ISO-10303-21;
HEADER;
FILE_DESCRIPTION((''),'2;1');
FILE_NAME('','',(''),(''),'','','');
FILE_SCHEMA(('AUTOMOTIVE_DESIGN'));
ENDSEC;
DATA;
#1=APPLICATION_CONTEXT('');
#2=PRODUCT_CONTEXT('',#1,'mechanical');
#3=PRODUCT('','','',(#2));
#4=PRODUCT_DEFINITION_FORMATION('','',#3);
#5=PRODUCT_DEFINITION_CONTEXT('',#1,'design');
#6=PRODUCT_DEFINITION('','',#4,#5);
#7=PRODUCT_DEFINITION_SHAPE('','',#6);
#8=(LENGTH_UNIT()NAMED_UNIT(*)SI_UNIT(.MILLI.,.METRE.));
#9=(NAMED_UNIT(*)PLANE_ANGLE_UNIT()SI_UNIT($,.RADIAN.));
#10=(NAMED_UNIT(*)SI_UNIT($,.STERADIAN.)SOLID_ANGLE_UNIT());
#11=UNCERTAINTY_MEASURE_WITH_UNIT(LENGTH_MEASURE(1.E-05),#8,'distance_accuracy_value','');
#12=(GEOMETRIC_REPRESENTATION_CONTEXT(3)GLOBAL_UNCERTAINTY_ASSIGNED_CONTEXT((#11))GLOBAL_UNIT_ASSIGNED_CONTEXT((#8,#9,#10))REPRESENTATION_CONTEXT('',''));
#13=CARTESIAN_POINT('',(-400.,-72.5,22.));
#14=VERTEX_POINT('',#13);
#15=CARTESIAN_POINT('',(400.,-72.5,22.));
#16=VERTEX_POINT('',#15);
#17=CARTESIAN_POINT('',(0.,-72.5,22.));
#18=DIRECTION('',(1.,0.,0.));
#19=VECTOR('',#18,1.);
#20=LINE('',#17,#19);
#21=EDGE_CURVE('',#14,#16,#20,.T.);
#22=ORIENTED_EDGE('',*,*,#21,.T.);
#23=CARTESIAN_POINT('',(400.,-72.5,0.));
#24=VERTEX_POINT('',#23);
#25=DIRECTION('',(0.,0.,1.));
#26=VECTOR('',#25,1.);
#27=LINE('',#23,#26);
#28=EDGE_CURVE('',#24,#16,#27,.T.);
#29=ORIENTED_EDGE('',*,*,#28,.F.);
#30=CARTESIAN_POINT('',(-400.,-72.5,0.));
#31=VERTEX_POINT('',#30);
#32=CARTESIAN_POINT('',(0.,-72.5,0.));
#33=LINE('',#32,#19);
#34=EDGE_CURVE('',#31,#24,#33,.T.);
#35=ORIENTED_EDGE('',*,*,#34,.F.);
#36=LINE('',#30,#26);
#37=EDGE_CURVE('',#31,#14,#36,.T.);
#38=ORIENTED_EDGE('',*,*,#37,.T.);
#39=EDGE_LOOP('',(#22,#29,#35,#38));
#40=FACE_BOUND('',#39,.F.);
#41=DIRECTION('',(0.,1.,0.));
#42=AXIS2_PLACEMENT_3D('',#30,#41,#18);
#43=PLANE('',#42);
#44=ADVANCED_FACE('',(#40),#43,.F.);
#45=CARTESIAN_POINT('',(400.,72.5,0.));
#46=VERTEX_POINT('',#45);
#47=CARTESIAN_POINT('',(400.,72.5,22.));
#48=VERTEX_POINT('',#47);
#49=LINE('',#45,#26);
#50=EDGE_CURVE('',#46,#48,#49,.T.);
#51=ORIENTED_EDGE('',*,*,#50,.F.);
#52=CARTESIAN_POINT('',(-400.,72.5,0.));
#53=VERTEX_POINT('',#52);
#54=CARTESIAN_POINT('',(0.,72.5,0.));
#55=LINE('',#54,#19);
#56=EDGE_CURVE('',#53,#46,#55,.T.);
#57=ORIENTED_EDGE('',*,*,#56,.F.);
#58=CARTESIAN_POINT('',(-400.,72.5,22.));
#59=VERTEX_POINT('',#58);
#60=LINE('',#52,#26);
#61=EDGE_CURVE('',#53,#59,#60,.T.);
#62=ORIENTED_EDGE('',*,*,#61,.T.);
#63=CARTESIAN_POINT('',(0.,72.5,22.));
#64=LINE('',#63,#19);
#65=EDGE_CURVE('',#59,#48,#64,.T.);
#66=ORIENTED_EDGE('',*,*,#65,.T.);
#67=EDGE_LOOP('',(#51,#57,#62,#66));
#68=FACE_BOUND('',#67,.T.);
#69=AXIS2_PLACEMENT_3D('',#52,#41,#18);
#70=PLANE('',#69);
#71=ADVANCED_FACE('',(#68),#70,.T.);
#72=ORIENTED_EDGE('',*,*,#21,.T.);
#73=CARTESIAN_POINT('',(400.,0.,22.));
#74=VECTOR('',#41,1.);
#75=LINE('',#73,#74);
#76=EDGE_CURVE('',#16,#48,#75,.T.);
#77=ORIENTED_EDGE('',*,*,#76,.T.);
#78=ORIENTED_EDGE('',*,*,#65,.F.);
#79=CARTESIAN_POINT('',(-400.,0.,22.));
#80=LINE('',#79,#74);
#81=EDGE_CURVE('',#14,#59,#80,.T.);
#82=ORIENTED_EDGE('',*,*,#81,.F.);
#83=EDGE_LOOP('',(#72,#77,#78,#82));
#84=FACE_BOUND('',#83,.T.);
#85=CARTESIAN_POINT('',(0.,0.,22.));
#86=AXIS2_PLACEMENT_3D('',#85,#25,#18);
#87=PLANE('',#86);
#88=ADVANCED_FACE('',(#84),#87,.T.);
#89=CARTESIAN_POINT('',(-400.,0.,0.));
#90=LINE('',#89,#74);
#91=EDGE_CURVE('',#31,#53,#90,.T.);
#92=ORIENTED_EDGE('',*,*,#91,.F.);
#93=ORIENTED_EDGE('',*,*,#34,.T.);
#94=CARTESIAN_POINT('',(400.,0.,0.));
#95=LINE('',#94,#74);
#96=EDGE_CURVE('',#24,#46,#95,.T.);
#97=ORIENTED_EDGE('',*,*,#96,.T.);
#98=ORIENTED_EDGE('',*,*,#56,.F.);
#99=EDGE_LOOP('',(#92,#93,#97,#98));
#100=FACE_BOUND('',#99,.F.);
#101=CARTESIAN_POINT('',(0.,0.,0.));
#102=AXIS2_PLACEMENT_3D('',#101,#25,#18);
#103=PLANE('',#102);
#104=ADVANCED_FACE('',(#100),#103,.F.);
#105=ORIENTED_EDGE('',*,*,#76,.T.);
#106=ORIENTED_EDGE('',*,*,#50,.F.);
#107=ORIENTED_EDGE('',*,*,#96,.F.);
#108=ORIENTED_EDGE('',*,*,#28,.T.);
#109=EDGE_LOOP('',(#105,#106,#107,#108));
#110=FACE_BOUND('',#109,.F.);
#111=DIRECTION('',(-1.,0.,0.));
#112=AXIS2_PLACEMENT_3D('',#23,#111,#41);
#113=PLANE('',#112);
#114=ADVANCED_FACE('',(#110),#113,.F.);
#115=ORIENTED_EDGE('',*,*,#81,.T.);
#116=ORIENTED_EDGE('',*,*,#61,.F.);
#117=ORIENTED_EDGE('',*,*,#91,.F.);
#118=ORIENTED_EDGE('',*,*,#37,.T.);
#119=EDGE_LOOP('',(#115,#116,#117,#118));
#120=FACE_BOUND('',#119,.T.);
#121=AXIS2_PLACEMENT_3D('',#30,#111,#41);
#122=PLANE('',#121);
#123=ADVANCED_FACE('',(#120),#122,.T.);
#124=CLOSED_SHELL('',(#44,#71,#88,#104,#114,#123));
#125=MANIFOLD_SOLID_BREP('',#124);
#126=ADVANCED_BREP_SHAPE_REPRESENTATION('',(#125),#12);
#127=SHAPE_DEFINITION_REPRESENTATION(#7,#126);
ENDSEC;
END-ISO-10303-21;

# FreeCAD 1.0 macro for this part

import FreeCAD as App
import Part
import Sketcher
from FreeCAD import Vector
Q = App.Units.Quantity

doc = App.newDocument("Part")
body = doc.addObject("PartDesign::Body", "Body")

# Sketch on XY plane
sketch1 = body.newObject("Sketcher::SketchObject", "Sketch")
sketch1.AttachmentSupport = (doc.getObject("XY_Plane"), [""])
sketch1.MapMode = "FlatFace"
sketch1.addGeometry(Part.LineSegment(Vector(-400, 72, 0), Vector(-400, -72, 0)), False)
sketch1.addGeometry(Part.LineSegment(Vector(-400, -72, 0), Vector(400, -72, 0)), False)
sketch1.addGeometry(Part.LineSegment(Vector(400, -72, 0), Vector(400, 72, 0)), False)
sketch1.addGeometry(Part.LineSegment(Vector(400, 72, 0), Vector(-400, 72, 0)), False)
sketch1.addConstraint(Sketcher.Constraint("Coincident", 0, 2, 1, 1))
sketch1.addConstraint(Sketcher.Constraint("Coincident", 1, 2, 2, 1))
sketch1.addConstraint(Sketcher.Constraint("Coincident", 2, 2, 3, 1))
sketch1.addConstraint(Sketcher.Constraint("Coincident", 3, 2, 0, 1))
sketch1.addConstraint(Sketcher.Constraint("Vertical", 0))
sketch1.addConstraint(Sketcher.Constraint("Horizontal", 1))
sketch1.addConstraint(Sketcher.Constraint("Vertical", 2))
sketch1.addConstraint(Sketcher.Constraint("Horizontal", 3))
sketch1.addConstraint(Sketcher.Constraint("Symmetric", 0, 2, 2, 2, -1, 1))
sketch1.addConstraint(Sketcher.Constraint("DistanceX", 1, 1, 1, 2, Q("800 mm")))
sketch1.addConstraint(Sketcher.Constraint("DistanceY", 0, 2, 0, 1, Q("145 mm")))
pad1 = body.newObject("PartDesign::Pad", "Pad")
pad1.Profile = sketch1
pad1.Length = 22

doc.recompute()
